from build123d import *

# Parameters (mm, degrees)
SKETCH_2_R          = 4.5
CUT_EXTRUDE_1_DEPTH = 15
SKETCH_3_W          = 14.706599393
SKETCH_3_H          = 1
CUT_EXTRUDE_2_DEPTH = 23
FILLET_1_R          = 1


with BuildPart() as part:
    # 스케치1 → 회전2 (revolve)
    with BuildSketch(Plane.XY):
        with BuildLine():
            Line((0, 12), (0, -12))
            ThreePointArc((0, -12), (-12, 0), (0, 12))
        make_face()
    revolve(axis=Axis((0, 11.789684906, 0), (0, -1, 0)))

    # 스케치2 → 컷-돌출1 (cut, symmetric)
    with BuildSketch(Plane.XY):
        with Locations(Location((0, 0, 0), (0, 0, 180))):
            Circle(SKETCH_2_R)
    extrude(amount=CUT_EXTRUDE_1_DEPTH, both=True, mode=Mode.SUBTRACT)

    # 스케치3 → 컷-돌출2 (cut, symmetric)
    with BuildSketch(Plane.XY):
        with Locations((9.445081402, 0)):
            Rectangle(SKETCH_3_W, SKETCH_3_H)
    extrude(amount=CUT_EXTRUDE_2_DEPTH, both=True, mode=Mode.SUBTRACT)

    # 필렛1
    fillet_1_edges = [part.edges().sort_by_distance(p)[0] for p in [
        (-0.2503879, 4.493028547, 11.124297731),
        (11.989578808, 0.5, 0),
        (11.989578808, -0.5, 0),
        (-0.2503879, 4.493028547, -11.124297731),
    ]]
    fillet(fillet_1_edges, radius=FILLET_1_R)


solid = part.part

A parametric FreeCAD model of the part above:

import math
import FreeCAD as App
import Part
import Sketcher

V = App.Vector
Q = App.Units.Quantity


def edges_at(feature, points):
    """Names of the edges that pass closest to the given points."""
    edges = feature.Shape.Edges
    near = lambda p: min(range(len(edges)), key=lambda i: edges[i].distToShape(Part.Vertex(*p))[0])
    return sorted({f"Edge{near(p) + 1}" for p in points})

doc = App.newDocument("Part")
params = doc.addObject("Spreadsheet::Sheet", "Params")
for row, (alias, value) in enumerate([
    ("sketch1_radius", "12 mm"),
    ("revolution_angle", "360 deg"),
    ("sketch2_diameter", "9 mm"),
    ("pocket1_length", "30 mm"),
    ("sketch3_height", "1 mm"),
    ("pocket2_length", "46 mm"),
    ("fillet_radius", "1 mm"),
], start=1):
    params.set(f"A{row}", alias)
    params.set(f"B{row}", "=" + value)
    params.setAlias(f"B{row}", alias)

body = doc.addObject("PartDesign::Body", "Body")

sketch1 = body.newObject("Sketcher::SketchObject", "Sketch")
sketch1.AttachmentSupport = (doc.getObject("XY_Plane"), [""])
sketch1.MapMode = "FlatFace"
sketch1.addGeometry([
    Part.LineSegment(V(0, -12, 0), V(0, 12, 0)),
    Part.ArcOfCircle(Part.Circle(V(0, 0, 0), V(0, 0, 1), 12), math.radians(90), math.radians(270)),
], False)
sketch1.addConstraint([
    Sketcher.Constraint("Coincident", 0, 1, 1, 2),
    Sketcher.Constraint("Coincident", 1, 1, 0, 2),
    Sketcher.Constraint("Vertical", 0),
    Sketcher.Constraint("Coincident", 1, 3, -1, 1),
    Sketcher.Constraint("PointOnObject", 0, 1, -2),
    Sketcher.Constraint("Radius", 1, Q("12 mm")),
])
sketch1.setExpression("Constraints[5]", "Params.sketch1_radius")
revolution = body.newObject("PartDesign::Revolution", "Revolution")
revolution.Profile = sketch1
revolution.ReferenceAxis = (sketch1, ["V_Axis"])
revolution.setExpression("Angle", "Params.revolution_angle")

sketch2 = body.newObject("Sketcher::SketchObject", "Sketch001")
sketch2.AttachmentSupport = (doc.getObject("XY_Plane"), [""])
sketch2.MapMode = "FlatFace"
sketch2.addGeometry(Part.Circle(V(0, 0, 0), V(0, 0, 1), 4.5), False)
sketch2.addConstraint([
    Sketcher.Constraint("Coincident", 0, 3, -1, 1),
    Sketcher.Constraint("Diameter", 0, Q("9 mm")),
])
sketch2.setExpression("Constraints[1]", "Params.sketch2_diameter")
pocket1 = body.newObject("PartDesign::Pocket", "Pocket")
pocket1.Profile = sketch2
pocket1.setExpression("Length", "Params.pocket1_length")
pocket1.Midplane = True

sketch3 = body.newObject("Sketcher::SketchObject", "Sketch002")
sketch3.AttachmentSupport = (doc.getObject("XY_Plane"), [""])
sketch3.MapMode = "FlatFace"
sketch3.addGeometry([
    Part.LineSegment(V(2.091782, 0.5, 0), V(2.091782, -0.5, 0)),
    Part.LineSegment(V(2.091782, -0.5, 0), V(16.798381, -0.5, 0)),
    Part.LineSegment(V(16.798381, -0.5, 0), V(16.798381, 0.5, 0)),
    Part.LineSegment(V(16.798381, 0.5, 0), V(2.091782, 0.5, 0)),
], False)
sketch3.addConstraint([
    Sketcher.Constraint("Coincident", 0, 2, 1, 1),
    Sketcher.Constraint("Coincident", 1, 2, 2, 1),
    Sketcher.Constraint("Coincident", 2, 2, 3, 1),
    Sketcher.Constraint("Coincident", 3, 2, 0, 1),
    Sketcher.Constraint("Vertical", 0),
    Sketcher.Constraint("Horizontal", 1),
    Sketcher.Constraint("Vertical", 2),
    Sketcher.Constraint("Horizontal", 3),
    Sketcher.Constraint("DistanceY", 0, 2, 0, 1, Q("1 mm")),
    Sketcher.Constraint("DistanceY", 0, 2, -1, 1, Q("0.5 mm")),
    Sketcher.Constraint("DistanceX", 1, 1, 1, 2, Q("14.706599 mm")),
    Sketcher.Constraint("DistanceX", -1, 1, 0, 2, Q("2.091782 mm")),
])
sketch3.setExpression("Constraints[8]", "Params.sketch3_height")
pocket2 = body.newObject("PartDesign::Pocket", "Pocket001")
pocket2.Profile = sketch3
pocket2.setExpression("Length", "Params.pocket2_length")
pocket2.Midplane = True
doc.recompute()

fillet = body.newObject("PartDesign::Fillet", "Fillet")
fillet.Base = (pocket2, edges_at(pocket2, [
    (-0.25, 4.493, 11.124),
    (11.99, 0.5, 0),
    (11.99, -0.5, 0),
    (-0.25, 4.493, -11.124),
]))
fillet.setExpression("Radius", "Params.fillet_radius")

doc.recompute()
